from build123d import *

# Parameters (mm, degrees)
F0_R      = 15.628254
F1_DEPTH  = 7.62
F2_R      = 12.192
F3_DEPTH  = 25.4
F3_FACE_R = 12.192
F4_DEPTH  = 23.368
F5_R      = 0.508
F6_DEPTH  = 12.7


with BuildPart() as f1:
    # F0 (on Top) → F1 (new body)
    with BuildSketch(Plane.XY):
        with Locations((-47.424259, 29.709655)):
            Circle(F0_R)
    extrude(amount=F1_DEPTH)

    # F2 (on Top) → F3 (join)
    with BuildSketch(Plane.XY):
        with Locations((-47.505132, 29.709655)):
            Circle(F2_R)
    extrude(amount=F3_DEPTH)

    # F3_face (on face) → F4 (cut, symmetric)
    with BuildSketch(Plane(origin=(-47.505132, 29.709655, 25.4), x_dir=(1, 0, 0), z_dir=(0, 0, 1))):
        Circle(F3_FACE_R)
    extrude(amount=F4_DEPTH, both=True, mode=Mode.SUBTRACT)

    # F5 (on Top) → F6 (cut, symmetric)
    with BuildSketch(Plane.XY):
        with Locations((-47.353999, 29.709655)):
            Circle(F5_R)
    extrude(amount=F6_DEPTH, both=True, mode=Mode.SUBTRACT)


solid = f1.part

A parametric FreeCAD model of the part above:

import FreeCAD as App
import Part
import Sketcher

V = App.Vector
Q = App.Units.Quantity

doc = App.newDocument("Part")
body = doc.addObject("PartDesign::Body", "Body")

sketch1 = body.newObject("Sketcher::SketchObject", "Sketch")
sketch1.AttachmentSupport = (doc.getObject("XY_Plane"), [""])
sketch1.MapMode = "FlatFace"
sketch1.addGeometry(Part.Circle(V(-47, 30, 0), V(0, 0, 1), 16), False)
sketch1.addConstraint(Sketcher.Constraint("Diameter", 0, Q("31.256508 mm")))
sketch1.addConstraint(Sketcher.Constraint("DistanceX", 0, 3, -1, 1, Q("47.424259 mm")))
sketch1.addConstraint(Sketcher.Constraint("DistanceY", -1, 1, 0, 3, Q("29.709655 mm")))
pad1 = body.newObject("PartDesign::Pad", "Pad")
pad1.Profile = sketch1
pad1.Length = Q("0.3 in")

sketch2 = body.newObject("Sketcher::SketchObject", "Sketch001")
sketch2.AttachmentSupport = (doc.getObject("XY_Plane"), [""])
sketch2.MapMode = "FlatFace"
sketch2.addGeometry(Part.Circle(V(-48, 30, 0), V(0, 0, 1), 12), False)
sketch2.addConstraint(Sketcher.Constraint("Diameter", 0, Q("0.96 in")))
sketch2.addConstraint(Sketcher.Constraint("DistanceX", 0, 3, -1, 1, Q("47.505132 mm")))
sketch2.addConstraint(Sketcher.Constraint("DistanceY", -1, 1, 0, 3, Q("29.709655 mm")))
pad2 = body.newObject("PartDesign::Pad", "Pad001")
pad2.Profile = sketch2
pad2.Length = Q("1 in")

sketch3 = body.newObject("Sketcher::SketchObject", "Sketch002")
sketch3.AttachmentSupport = (doc.getObject("XY_Plane"), [""])
sketch3.MapMode = "FlatFace"
sketch3.AttachmentOffset = App.Placement(V(0, 0, 1 * 25.4), App.Rotation())
sketch3.addGeometry(Part.Circle(V(-48, 30, 0), V(0, 0, 1), 12), False)
sketch3.addConstraint(Sketcher.Constraint("Diameter", 0, Q("0.96 in")))
sketch3.addConstraint(Sketcher.Constraint("DistanceX", 0, 3, -1, 1, Q("47.505132 mm")))
sketch3.addConstraint(Sketcher.Constraint("DistanceY", -1, 1, 0, 3, Q("29.709655 mm")))
pocket1 = body.newObject("PartDesign::Pocket", "Pocket")
pocket1.Profile = sketch3
pocket1.Length = Q("1.84 in")
pocket1.Midplane = True

sketch4 = body.newObject("Sketcher::SketchObject", "Sketch003")
sketch4.AttachmentSupport = (doc.getObject("XY_Plane"), [""])
sketch4.MapMode = "FlatFace"
sketch4.addGeometry(Part.Circle(V(-47.4, 29.7, 0), V(0, 0, 1), 0.5), False)
sketch4.addConstraint(Sketcher.Constraint("Diameter", 0, Q("0.04 in")))
sketch4.addConstraint(Sketcher.Constraint("DistanceX", 0, 3, -1, 1, Q("47.353999 mm")))
sketch4.addConstraint(Sketcher.Constraint("DistanceY", -1, 1, 0, 3, Q("29.709655 mm")))
pocket2 = body.newObject("PartDesign::Pocket", "Pocket001")
pocket2.Profile = sketch4
pocket2.Length = Q("1 in")
pocket2.Midplane = True

doc.recompute()
